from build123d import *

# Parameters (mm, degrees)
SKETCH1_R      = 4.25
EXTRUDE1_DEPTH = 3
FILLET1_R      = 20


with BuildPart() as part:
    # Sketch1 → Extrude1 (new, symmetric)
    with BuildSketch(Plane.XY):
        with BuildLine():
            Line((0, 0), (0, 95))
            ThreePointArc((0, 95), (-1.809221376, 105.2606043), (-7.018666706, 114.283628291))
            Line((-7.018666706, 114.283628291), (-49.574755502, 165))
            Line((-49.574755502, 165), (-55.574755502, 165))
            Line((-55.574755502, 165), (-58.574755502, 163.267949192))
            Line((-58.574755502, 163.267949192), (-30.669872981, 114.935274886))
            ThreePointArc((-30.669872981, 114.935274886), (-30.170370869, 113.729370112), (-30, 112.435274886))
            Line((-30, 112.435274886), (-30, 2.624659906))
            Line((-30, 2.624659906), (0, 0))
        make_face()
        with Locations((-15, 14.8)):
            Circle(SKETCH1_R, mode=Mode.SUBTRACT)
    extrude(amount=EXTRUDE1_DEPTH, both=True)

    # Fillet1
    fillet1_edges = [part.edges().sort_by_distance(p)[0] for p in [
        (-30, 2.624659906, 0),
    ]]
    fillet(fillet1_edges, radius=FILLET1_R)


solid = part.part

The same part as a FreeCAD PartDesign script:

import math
import FreeCAD as App
import Part
import Sketcher
from FreeCAD import Vector
Q = App.Units.Quantity


def edges_at(feature, points):
    """Names of the edges that pass closest to the given points."""
    edges = feature.Shape.Edges
    near = lambda p: min(range(len(edges)), key=lambda i: edges[i].distToShape(Part.Vertex(*p))[0])
    return sorted({f"Edge{near(p) + 1}" for p in points})

doc = App.newDocument("Part")
params = doc.addObject("Spreadsheet::Sheet", "Params")
for row, (alias, value) in enumerate([
    ("sketch1_radius", "30 mm"),
    ("sketch1_radius2", "5 mm"),
    ("sketch1_diameter", "8.5 mm"),
    ("sketch1_width", "6 mm"),
    ("sketch1_height", "95 mm"),
    ("pad1_length", "6 mm"),
    ("fillet_radius", "20 mm"),
], start=1):
    params.set(f"A{row}", alias)
    params.set(f"B{row}", "=" + value)
    params.setAlias(f"B{row}", alias)

body = doc.addObject("PartDesign::Body", "Body")

sketch1 = body.newObject("Sketcher::SketchObject", "Sketch")
sketch1.AttachmentSupport = (doc.getObject("XY_Plane"), [""])
sketch1.MapMode = "FlatFace"
sketch1.addGeometry(Part.LineSegment(Vector(0, 0, 0), Vector(0, 95, 0)), False)
sketch1.addGeometry(Part.ArcOfCircle(Part.Circle(Vector(-30, 95, 0), Vector(0, 0, 1), 30), math.radians(0), math.radians(40)), False)
sketch1.addGeometry(Part.LineSegment(Vector(-7, 114.3, 0), Vector(-49.6, 165, 0)), False)
sketch1.addGeometry(Part.LineSegment(Vector(-49.6, 165, 0), Vector(-55.6, 165, 0)), False)
sketch1.addGeometry(Part.LineSegment(Vector(-55.6, 165, 0), Vector(-58.6, 163.3, 0)), False)
sketch1.addGeometry(Part.LineSegment(Vector(-58.6, 163.3, 0), Vector(-30.7, 114.9, 0)), False)
sketch1.addGeometry(Part.ArcOfCircle(Part.Circle(Vector(-35, 112.4, 0), Vector(0, 0, 1), 5), math.radians(0), math.radians(30)), False)
sketch1.addGeometry(Part.LineSegment(Vector(-30, 112.4, 0), Vector(-30, 2.6, 0)), False)
sketch1.addGeometry(Part.LineSegment(Vector(-30, 2.6, 0), Vector(0, 0, 0)), False)
sketch1.addGeometry(Part.Circle(Vector(-15, 14.8, 0), Vector(0, 0, 1), 4.2), False)
sketch1.addConstraint(Sketcher.Constraint("Tangent", 0, 2, 1, 1))
sketch1.addConstraint(Sketcher.Constraint("Tangent", 1, 2, 2, 1))
sketch1.addConstraint(Sketcher.Constraint("Coincident", 2, 2, 3, 1))
sketch1.addConstraint(Sketcher.Constraint("Coincident", 3, 2, 4, 1))
sketch1.addConstraint(Sketcher.Constraint("Coincident", 4, 2, 5, 1))
sketch1.addConstraint(Sketcher.Constraint("Tangent", 5, 2, 6, 2))
sketch1.addConstraint(Sketcher.Constraint("Tangent", 6, 1, 7, 1))
sketch1.addConstraint(Sketcher.Constraint("Coincident", 7, 2, 8, 1))
sketch1.addConstraint(Sketcher.Constraint("Coincident", 8, 2, 0, 1))
sketch1.addConstraint(Sketcher.Constraint("Vertical", 0))
sketch1.addConstraint(Sketcher.Constraint("Horizontal", 3))
sketch1.addConstraint(Sketcher.Constraint("Vertical", 7))
sketch1.addConstraint(Sketcher.Constraint("Coincident", 8, 2, -1, 1))
sketch1.addConstraint(Sketcher.Constraint("Perpendicular", 4, 5))
sketch1.addConstraint(Sketcher.Constraint("Vertical", 1, 3, 6, 1))
sketch1.addConstraint(Sketcher.Constraint("Radius", 1, Q("30 mm")))
sketch1.addConstraint(Sketcher.Constraint("Radius", 6, Q("5 mm")))
sketch1.addConstraint(Sketcher.Constraint("Diameter", 9, Q("8.5 mm")))
sketch1.addConstraint(Sketcher.Constraint("DistanceX", 3, 2, 3, 1, Q("6 mm")))
sketch1.addConstraint(Sketcher.Constraint("DistanceY", 0, 1, 0, 2, Q("95 mm")))
sketch1.addConstraint(Sketcher.Constraint("Angle", 2, Q("130 deg")))
sketch1.addConstraint(Sketcher.Constraint("Angle", 4, Q("-150 deg")))
sketch1.addConstraint(Sketcher.Constraint("Angle", 8, Q("-5 deg")))
sketch1.addConstraint(Sketcher.Constraint("DistanceX", 9, 3, -1, 1, Q("15 mm")))
sketch1.addConstraint(Sketcher.Constraint("DistanceY", -1, 1, 2, 2, Q("165 mm")))
sketch1.addConstraint(Sketcher.Constraint("DistanceX", 4, 2, 3, 2, Q("3 mm")))
sketch1.addConstraint(Sketcher.Constraint("DistanceY", -1, 1, 9, 3, Q("14.8 mm")))
sketch1.setExpression("Constraints[15]", "Params.sketch1_radius")
sketch1.setExpression("Constraints[16]", "Params.sketch1_radius2")
sketch1.setExpression("Constraints[17]", "Params.sketch1_diameter")
sketch1.setExpression("Constraints[18]", "Params.sketch1_width")
sketch1.setExpression("Constraints[19]", "Params.sketch1_height")
pad1 = body.newObject("PartDesign::Pad", "Pad")
pad1.Profile = sketch1
pad1.setExpression("Length", "Params.pad1_length")
pad1.Midplane = True
doc.recompute()

fillet = body.newObject("PartDesign::Fillet", "Fillet")
fillet.Base = (pad1, edges_at(pad1, [(-30, 2.625, 0)]))
fillet.setExpression("Radius", "Params.fillet_radius")

doc.recompute()
